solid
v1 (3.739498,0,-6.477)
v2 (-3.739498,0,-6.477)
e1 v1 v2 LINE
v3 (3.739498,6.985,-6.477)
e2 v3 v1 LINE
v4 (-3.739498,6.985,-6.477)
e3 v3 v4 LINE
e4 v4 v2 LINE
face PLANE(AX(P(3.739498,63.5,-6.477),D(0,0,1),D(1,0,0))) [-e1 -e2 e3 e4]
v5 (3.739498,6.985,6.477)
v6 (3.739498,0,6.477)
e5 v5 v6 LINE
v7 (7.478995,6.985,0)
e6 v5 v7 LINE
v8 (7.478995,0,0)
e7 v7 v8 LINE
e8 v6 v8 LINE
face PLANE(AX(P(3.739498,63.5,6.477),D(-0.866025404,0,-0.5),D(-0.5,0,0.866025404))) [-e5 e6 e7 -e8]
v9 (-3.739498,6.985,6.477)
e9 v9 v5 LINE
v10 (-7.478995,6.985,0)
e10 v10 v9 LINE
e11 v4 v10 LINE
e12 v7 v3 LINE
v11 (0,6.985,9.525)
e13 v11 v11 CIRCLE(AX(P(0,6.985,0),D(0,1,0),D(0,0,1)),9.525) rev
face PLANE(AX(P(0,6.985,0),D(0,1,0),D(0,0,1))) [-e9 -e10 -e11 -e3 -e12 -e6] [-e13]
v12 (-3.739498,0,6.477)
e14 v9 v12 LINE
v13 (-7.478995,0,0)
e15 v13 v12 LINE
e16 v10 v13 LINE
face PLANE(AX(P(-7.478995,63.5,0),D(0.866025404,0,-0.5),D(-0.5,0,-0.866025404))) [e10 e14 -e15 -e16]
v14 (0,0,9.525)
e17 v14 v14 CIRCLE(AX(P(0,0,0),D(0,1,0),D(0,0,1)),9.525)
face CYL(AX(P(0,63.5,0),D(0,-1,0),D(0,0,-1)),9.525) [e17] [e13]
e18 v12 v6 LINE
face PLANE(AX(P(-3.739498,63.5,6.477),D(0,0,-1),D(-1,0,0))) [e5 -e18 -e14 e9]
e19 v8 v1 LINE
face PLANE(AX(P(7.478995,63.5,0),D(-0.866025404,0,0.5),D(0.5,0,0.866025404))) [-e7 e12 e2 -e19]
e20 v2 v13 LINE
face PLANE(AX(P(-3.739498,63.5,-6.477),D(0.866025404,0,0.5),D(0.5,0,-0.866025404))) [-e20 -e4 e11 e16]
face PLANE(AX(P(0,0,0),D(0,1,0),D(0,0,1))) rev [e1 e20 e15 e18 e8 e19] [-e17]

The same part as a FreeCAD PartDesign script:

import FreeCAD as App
import Part
import Sketcher
Q = App.Units.Quantity

doc = App.newDocument("Part")
params = doc.addObject("Spreadsheet::Sheet", "Params")
for row, (alias, value) in enumerate([
    ("sketch1_diameter", "0.75 in"),
    ("pad1_length", "2.5 in"),
    ("sketch2_diameter", "0.75 in"),
    ("pocket1_length", "2.225 in"),
], start=1):
    params.set(f"A{row}", alias)
    params.set(f"B{row}", "=" + value)
    params.setAlias(f"B{row}", alias)

body = doc.addObject("PartDesign::Body", "Body")

# Sketch on XZ plane
sketch1 = body.newObject("Sketcher::SketchObject", "Sketch")
sketch1.AttachmentSupport = (doc.getObject("XZ_Plane"), [""])
sketch1.MapMode = "FlatFace"
sketch1.addGeometry([
    Part.Circle(App.Vector(0, 0, 0), App.Vector(0, 0, 1), 10),  # 0
    Part.LineSegment(App.Vector(4, -6, 0), App.Vector(7, 0, 0)),  # 1
    Part.LineSegment(App.Vector(7, 0, 0), App.Vector(4, 6, 0)),  # 2
    Part.LineSegment(App.Vector(4, 6, 0), App.Vector(-4, 6, 0)),  # 3
    Part.LineSegment(App.Vector(-4, 6, 0), App.Vector(-7, 0, 0)),  # 4
    Part.LineSegment(App.Vector(-7, 0, 0), App.Vector(-4, -6, 0)),  # 5
    Part.LineSegment(App.Vector(-4, -6, 0), App.Vector(4, -6, 0)),  # 6
], False)
sketch1.addConstraint([
    Sketcher.Constraint("Coincident", 1, 2, 2, 1),
    Sketcher.Constraint("Coincident", 2, 2, 3, 1),
    Sketcher.Constraint("Coincident", 3, 2, 4, 1),
    Sketcher.Constraint("Coincident", 4, 2, 5, 1),
    Sketcher.Constraint("Coincident", 5, 2, 6, 1),
    Sketcher.Constraint("Coincident", 6, 2, 1, 1),
    Sketcher.Constraint("Horizontal", 3),
    Sketcher.Constraint("Horizontal", 6),
    Sketcher.Constraint("Coincident", 0, 3, -1, 1),
    Sketcher.Constraint("Symmetric", 1, 2, 4, 2, -1, 1),
    Sketcher.Constraint("Symmetric", 2, 2, 5, 2, -1, 1),
    Sketcher.Constraint("PointOnObject", 1, 2, -1),
    Sketcher.Constraint("Parallel", 1, 4),
    Sketcher.Constraint("Vertical", 3, 2, 5, 2),
    Sketcher.Constraint("Diameter", 0, Q("0.75 in")),
    Sketcher.Constraint("Angle", 1, Q("60 deg")),
    Sketcher.Constraint("DistanceY", 5, 2, 3, 2, Q("0.51 in")),
    Sketcher.Constraint("DistanceX", 3, 2, 3, 1, Q("7.478995 mm")),
])
sketch1.setExpression("Constraints[14]", "Params.sketch1_diameter")
pad1 = body.newObject("PartDesign::Pad", "Pad")
pad1.Profile = sketch1
pad1.setExpression("Length", "Params.pad1_length")
pad1.Reversed = True

# Sketch on XZ plane
sketch2 = body.newObject("Sketcher::SketchObject", "Sketch001")
sketch2.AttachmentSupport = (doc.getObject("XZ_Plane"), [""])
sketch2.MapMode = "FlatFace"
sketch2.AttachmentOffset = App.Placement(App.Vector(0, 0, -0.275 * 25.4), App.Rotation())
sketch2.addGeometry(Part.Circle(App.Vector(0, 0, 0), App.Vector(0, 0, 1), 10), False)
sketch2.addConstraint([
    Sketcher.Constraint("Coincident", 0, 3, -1, 1),
    Sketcher.Constraint("Diameter", 0, Q("0.75 in")),
])
sketch2.setExpression("Constraints[1]", "Params.sketch2_diameter")
pocket1 = body.newObject("PartDesign::Pocket", "Pocket")
pocket1.Profile = sketch2
pocket1.setExpression("Length", "Params.pocket1_length")

doc.recompute()
